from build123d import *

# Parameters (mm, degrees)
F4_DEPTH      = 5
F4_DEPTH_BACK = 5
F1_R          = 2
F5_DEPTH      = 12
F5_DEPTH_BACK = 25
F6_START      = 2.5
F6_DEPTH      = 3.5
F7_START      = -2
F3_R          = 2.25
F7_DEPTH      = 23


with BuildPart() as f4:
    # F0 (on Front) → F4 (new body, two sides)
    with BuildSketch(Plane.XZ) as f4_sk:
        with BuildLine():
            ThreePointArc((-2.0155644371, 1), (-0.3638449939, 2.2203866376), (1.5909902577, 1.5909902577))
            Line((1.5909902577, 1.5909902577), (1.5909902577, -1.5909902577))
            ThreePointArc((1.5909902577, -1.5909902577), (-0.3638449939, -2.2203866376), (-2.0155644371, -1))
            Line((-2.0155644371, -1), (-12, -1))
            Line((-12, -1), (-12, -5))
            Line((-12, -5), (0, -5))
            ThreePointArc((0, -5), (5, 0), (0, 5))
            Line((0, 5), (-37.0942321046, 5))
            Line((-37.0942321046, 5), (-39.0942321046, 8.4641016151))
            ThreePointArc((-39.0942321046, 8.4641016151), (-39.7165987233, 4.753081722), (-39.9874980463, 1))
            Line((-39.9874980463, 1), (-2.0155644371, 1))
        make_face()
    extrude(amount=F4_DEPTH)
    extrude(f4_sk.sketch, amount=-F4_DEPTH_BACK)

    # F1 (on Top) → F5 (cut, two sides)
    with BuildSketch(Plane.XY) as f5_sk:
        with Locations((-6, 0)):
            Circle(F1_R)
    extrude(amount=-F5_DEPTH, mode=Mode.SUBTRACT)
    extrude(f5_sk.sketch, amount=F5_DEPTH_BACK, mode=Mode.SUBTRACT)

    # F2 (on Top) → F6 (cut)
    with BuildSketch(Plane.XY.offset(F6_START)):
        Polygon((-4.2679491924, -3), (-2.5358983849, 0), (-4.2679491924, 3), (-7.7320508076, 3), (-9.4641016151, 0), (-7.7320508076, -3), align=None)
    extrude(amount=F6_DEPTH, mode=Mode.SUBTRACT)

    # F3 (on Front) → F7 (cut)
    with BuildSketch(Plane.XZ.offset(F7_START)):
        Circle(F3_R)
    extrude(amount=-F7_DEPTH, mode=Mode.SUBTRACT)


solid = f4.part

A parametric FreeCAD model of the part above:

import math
import FreeCAD as App
import Part
import Sketcher
from FreeCAD import Vector
Q = App.Units.Quantity


def add_polygon(sketch, points):
    """Adds a closed chain of lines whose ends are joined by coincident constraints."""
    first, n = sketch.GeometryCount, len(points)
    for a, b in zip(points, points[1:] + points[:1]):
        sketch.addGeometry(Part.LineSegment(App.Vector(*a, 0), App.Vector(*b, 0)), False)
    for i in range(n):
        sketch.addConstraint(Sketcher.Constraint("Coincident", first + i, 2, first + (i + 1) % n, 1))

doc = App.newDocument("Part")
params = doc.addObject("Spreadsheet::Sheet", "Params")
for row, (alias, value) in enumerate([
    ("sketch1_radius", "5 mm"),
    ("sketch1_radius2", "40 mm"),
    ("sketch1_width", "12 mm"),
    ("sketch1_height", "4 mm"),
    ("sketch1_radius3", "2.25 mm"),
    ("pad1_length", "5 mm"),
    ("pad1_length2", "5 mm"),
    ("sketch2_diameter", "4 mm"),
    ("pocket2_length", "3.5 mm"),
    ("sketch4_diameter", "4.5 mm"),
    ("pocket3_length", "23 mm"),
], start=1):
    params.set(f"A{row}", alias)
    params.set(f"B{row}", "=" + value)
    params.setAlias(f"B{row}", alias)

body = doc.addObject("PartDesign::Body", "Body")

# Sketch on XZ plane
sketch1 = body.newObject("Sketcher::SketchObject", "Sketch")
sketch1.AttachmentSupport = (doc.getObject("XZ_Plane"), [""])
sketch1.MapMode = "FlatFace"
sketch1.addGeometry([
    Part.ArcOfCircle(Part.Circle(Vector(0, 0, 0), Vector(0, 0, 1), 2.2), math.radians(45), math.radians(154)),  # 0
    Part.LineSegment(Vector(1.6, 1.6, 0), Vector(1.6, -1.6, 0)),  # 1
    Part.ArcOfCircle(Part.Circle(Vector(0, 0, 0), Vector(0, 0, 1), 2.2), math.radians(-154), math.radians(-45)),  # 2
    Part.LineSegment(Vector(-2, -1, 0), Vector(-12, -1, 0)),  # 3
    Part.LineSegment(Vector(-12, -1, 0), Vector(-12, -5, 0)),  # 4
    Part.LineSegment(Vector(-12, -5, 0), Vector(0, -5, 0)),  # 5
    Part.ArcOfCircle(Part.Circle(Vector(0, 0, 0), Vector(0, 0, 1), 5), math.radians(-90), math.radians(90)),  # 6
    Part.LineSegment(Vector(0, 5, 0), Vector(-37.1, 5, 0)),  # 7
    Part.LineSegment(Vector(-37.1, 5, 0), Vector(-39.1, 8.5, 0)),  # 8
    Part.ArcOfCircle(Part.Circle(Vector(0, 0, 0), Vector(0, 0, 1), 40), math.radians(167.78), math.radians(178.57)),  # 9
    Part.LineSegment(Vector(-40, 1, 0), Vector(-2, 1, 0)),  # 10
], False)
sketch1.addConstraint([
    Sketcher.Constraint("Coincident", 0, 1, 1, 1),
    Sketcher.Constraint("Coincident", 1, 2, 2, 2),
    Sketcher.Constraint("Coincident", 2, 1, 3, 1),
    Sketcher.Constraint("Coincident", 3, 2, 4, 1),
    Sketcher.Constraint("Coincident", 4, 2, 5, 1),
    Sketcher.Constraint("Tangent", 5, 2, 6, 1),
    Sketcher.Constraint("Tangent", 6, 2, 7, 1),
    Sketcher.Constraint("Coincident", 7, 2, 8, 1),
    Sketcher.Constraint("Coincident", 8, 2, 9, 1),
    Sketcher.Constraint("Coincident", 9, 2, 10, 1),
    Sketcher.Constraint("Coincident", 10, 2, 0, 2),
    Sketcher.Constraint("Vertical", 1),
    Sketcher.Constraint("Horizontal", 3),
    Sketcher.Constraint("Vertical", 4),
    Sketcher.Constraint("Horizontal", 5),
    Sketcher.Constraint("Horizontal", 7),
    Sketcher.Constraint("Horizontal", 10),
    Sketcher.Constraint("Coincident", 0, 3, -1, 1),
    Sketcher.Constraint("Coincident", 2, 3, -1, 1),
    Sketcher.Constraint("Coincident", 6, 3, -1, 1),
    Sketcher.Constraint("Coincident", 9, 3, -1, 1),
    Sketcher.Constraint("Equal", 0, 2),
    Sketcher.Constraint("Vertical", 2, 1, 10, 2),
    Sketcher.Constraint("Radius", 6, 5.0),
    Sketcher.Constraint("Radius", 9, 40.0),
    Sketcher.Constraint("DistanceX", 5, 1, 5, 2, 12.0),
    Sketcher.Constraint("DistanceY", 4, 2, 4, 1, 4.0),
    Sketcher.Constraint("Angle", 8, Q("120 deg")),
    Sketcher.Constraint("Radius", 0, 2.25),
    Sketcher.Constraint("Distance", 8, 4.0),
    Sketcher.Constraint("DistanceY", 1, 2, 1, 1, 3.181981),
])
sketch1.setExpression("Constraints[23]", "Params.sketch1_radius")
sketch1.setExpression("Constraints[24]", "Params.sketch1_radius2")
sketch1.setExpression("Constraints[25]", "Params.sketch1_width")
sketch1.setExpression("Constraints[26]", "Params.sketch1_height")
sketch1.setExpression("Constraints[28]", "Params.sketch1_radius3")
pad1 = body.newObject("PartDesign::Pad", "Pad")
pad1.Profile = sketch1
pad1.Type = "TwoLengths"
pad1.setExpression("Length", "Params.pad1_length")
pad1.setExpression("Length2", "Params.pad1_length2")

# Sketch on XY plane
sketch2 = body.newObject("Sketcher::SketchObject", "Sketch001")
sketch2.AttachmentSupport = (doc.getObject("XY_Plane"), [""])
sketch2.MapMode = "FlatFace"
sketch2.addGeometry(Part.Circle(Vector(-6, 0, 0), Vector(0, 0, 1), 2), False)
sketch2.addConstraint([
    Sketcher.Constraint("PointOnObject", 0, 3, -1),
    Sketcher.Constraint("Diameter", 0, 4.0),
    Sketcher.Constraint("DistanceX", 0, 3, -1, 1, 6.0),
])
sketch2.setExpression("Constraints[1]", "Params.sketch2_diameter")
pocket1 = body.newObject("PartDesign::Pocket", "Pocket")
pocket1.Profile = sketch2
pocket1.Type = "ThroughAll"
pocket1.Midplane = True

# Sketch on XY plane
sketch3 = body.newObject("Sketcher::SketchObject", "Sketch002")
sketch3.AttachmentSupport = (doc.getObject("XY_Plane"), [""])
sketch3.MapMode = "FlatFace"
sketch3.AttachmentOffset = App.Placement(Vector(0, 0, 2.5), App.Rotation())
add_polygon(sketch3, [(-4.3, -3), (-2.5, 0), (-4.3, 3), (-7.7, 3), (-9.5, 0), (-7.7, -3)])  # lines 0-5
sketch3.addConstraint([
    Sketcher.Constraint("Horizontal", 2),
    Sketcher.Constraint("Horizontal", 5),
    Sketcher.Constraint("Symmetric", 2, 2, 4, 2, -1),
    Sketcher.Constraint("PointOnObject", 0, 2, -1),
    Sketcher.Constraint("PointOnObject", 3, 2, -1),
    Sketcher.Constraint("Parallel", 0, 3),
    Sketcher.Constraint("Parallel", 1, 4),
    Sketcher.Constraint("Angle", 0, Q("60 deg")),
    Sketcher.Constraint("DistanceY", -1, 1, 1, 2, 3.0),
    Sketcher.Constraint("DistanceX", 2, 2, 2, 1, 3.464102),
    Sketcher.Constraint("DistanceX", 0, 2, -1, 1, 2.535898),
])
pocket2 = body.newObject("PartDesign::Pocket", "Pocket001")
pocket2.Profile = sketch3
pocket2.setExpression("Length", "Params.pocket2_length")
pocket2.Reversed = True

# Sketch on XZ plane
sketch4 = body.newObject("Sketcher::SketchObject", "Sketch003")
sketch4.AttachmentSupport = (doc.getObject("XZ_Plane"), [""])
sketch4.MapMode = "FlatFace"
sketch4.AttachmentOffset = App.Placement(Vector(0, 0, -2), App.Rotation())
sketch4.addGeometry(Part.Circle(Vector(0, 0, 0), Vector(0, 0, 1), 2.2), False)
sketch4.addConstraint([
    Sketcher.Constraint("Coincident", 0, 3, -1, 1),
    Sketcher.Constraint("Diameter", 0, 4.5),
])
sketch4.setExpression("Constraints[1]", "Params.sketch4_diameter")
pocket3 = body.newObject("PartDesign::Pocket", "Pocket002")
pocket3.Profile = sketch4
pocket3.setExpression("Length", "Params.pocket3_length")

doc.recompute()
